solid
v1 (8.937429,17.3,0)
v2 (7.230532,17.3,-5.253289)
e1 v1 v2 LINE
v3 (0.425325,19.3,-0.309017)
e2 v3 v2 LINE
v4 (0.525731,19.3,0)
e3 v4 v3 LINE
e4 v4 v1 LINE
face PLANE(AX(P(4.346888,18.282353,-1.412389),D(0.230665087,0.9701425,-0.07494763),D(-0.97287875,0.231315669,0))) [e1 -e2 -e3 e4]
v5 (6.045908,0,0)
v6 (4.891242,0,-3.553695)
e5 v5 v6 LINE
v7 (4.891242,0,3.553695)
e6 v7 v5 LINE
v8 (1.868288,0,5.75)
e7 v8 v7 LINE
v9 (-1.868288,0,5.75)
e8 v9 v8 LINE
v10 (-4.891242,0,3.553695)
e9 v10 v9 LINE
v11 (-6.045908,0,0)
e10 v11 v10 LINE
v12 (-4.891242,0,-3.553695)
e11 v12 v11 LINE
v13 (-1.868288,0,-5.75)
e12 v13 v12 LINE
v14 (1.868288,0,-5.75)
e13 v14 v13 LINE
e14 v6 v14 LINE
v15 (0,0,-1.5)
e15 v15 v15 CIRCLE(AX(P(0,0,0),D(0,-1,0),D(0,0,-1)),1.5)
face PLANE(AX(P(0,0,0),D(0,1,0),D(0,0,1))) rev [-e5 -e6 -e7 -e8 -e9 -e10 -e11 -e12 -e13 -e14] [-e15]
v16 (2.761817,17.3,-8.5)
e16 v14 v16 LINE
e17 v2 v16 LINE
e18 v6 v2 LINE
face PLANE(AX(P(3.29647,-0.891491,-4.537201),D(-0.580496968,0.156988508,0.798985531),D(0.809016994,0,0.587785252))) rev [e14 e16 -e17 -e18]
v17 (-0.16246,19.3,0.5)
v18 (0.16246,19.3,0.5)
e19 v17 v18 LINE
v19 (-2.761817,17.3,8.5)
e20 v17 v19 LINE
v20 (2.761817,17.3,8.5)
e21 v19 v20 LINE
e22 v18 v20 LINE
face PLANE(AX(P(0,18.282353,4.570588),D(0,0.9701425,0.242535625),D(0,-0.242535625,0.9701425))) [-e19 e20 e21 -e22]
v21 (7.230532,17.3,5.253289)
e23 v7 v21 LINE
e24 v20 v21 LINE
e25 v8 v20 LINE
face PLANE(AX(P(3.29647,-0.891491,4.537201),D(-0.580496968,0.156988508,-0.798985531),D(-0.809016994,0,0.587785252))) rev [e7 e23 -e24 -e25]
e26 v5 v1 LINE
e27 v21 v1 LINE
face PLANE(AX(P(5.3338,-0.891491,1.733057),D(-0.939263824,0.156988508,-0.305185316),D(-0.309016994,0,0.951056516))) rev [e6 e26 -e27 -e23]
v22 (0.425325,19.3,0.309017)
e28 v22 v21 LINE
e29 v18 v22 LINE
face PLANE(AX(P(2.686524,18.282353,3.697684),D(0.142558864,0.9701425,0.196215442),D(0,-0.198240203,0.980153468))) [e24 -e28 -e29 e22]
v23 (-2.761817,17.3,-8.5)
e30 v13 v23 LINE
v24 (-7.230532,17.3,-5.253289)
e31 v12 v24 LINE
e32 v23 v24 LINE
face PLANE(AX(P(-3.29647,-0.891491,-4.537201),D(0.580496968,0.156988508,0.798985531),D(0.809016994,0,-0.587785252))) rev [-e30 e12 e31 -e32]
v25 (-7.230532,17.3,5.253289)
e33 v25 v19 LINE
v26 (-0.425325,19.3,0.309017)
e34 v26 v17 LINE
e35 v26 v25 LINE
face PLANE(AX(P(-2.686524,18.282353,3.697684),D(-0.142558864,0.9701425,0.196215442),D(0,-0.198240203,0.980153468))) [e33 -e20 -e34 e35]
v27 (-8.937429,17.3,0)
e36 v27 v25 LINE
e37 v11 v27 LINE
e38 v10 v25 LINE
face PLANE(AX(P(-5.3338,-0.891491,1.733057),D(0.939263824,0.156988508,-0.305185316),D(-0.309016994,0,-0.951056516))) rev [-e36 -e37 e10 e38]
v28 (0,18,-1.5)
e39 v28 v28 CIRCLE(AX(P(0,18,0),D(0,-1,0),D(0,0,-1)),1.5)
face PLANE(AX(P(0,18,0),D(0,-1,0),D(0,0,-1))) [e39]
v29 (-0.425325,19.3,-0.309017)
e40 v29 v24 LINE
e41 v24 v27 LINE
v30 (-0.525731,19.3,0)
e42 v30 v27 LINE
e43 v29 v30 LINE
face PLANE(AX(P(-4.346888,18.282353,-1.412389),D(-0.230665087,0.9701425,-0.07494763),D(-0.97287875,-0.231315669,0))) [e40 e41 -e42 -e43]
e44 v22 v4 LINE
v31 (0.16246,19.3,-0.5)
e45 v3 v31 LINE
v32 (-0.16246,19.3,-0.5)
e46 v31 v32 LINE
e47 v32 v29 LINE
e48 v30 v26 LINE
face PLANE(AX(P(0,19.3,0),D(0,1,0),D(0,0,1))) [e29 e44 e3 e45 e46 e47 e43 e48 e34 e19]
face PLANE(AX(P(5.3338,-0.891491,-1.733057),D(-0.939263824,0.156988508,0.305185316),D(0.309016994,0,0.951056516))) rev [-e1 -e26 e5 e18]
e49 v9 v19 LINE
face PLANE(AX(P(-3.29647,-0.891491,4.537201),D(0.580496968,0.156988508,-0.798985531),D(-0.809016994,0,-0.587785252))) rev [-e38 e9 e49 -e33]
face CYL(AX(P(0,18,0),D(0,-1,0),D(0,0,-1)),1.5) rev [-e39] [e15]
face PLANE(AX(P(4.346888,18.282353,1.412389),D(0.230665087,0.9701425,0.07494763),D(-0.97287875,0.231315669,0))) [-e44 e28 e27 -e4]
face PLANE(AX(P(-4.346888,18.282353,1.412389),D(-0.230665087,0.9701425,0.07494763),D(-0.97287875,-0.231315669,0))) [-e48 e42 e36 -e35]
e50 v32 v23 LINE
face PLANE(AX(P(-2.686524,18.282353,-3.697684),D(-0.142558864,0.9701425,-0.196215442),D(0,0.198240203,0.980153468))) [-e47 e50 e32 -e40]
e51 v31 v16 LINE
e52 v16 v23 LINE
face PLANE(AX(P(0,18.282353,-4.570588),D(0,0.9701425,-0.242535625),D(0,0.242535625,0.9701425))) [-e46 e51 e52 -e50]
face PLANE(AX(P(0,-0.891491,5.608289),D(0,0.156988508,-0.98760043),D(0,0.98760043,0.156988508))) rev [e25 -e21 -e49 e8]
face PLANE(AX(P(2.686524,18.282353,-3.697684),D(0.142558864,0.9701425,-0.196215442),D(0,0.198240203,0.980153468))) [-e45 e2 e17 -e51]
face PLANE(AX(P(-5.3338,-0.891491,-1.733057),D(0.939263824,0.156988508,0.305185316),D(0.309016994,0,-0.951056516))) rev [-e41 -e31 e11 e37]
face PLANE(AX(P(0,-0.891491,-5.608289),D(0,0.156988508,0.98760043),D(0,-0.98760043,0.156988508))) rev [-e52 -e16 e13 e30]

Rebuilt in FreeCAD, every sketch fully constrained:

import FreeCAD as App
import Part
import Sketcher
Q = App.Units.Quantity

doc = App.newDocument("Part")
params = doc.addObject("Spreadsheet::Sheet", "Params")
for row, (alias, value) in enumerate([
    ("sketch5_diameter", "3 mm"),
    ("pocket1_length", "18 mm"),
], start=1):
    params.set(f"A{row}", alias)
    params.set(f"B{row}", "=" + value)
    params.setAlias(f"B{row}", alias)

body = doc.addObject("PartDesign::Body", "Body")

sketch1 = body.newObject("Sketcher::SketchObject", "Sketch")
sketch1.AttachmentSupport = (doc.getObject("XZ_Plane"), [""])
sketch1.MapMode = "FlatFace"
sketch1.addGeometry(Part.LineSegment(App.Vector(4.891242, -3.553695, 0), App.Vector(1.868288, -5.75, 0)), False)
sketch1.addGeometry(Part.LineSegment(App.Vector(1.868288, -5.75, 0), App.Vector(-1.868288, -5.75, 0)), False)
sketch1.addGeometry(Part.LineSegment(App.Vector(-1.868288, -5.75, 0), App.Vector(-4.891242, -3.553695, 0)), False)
sketch1.addGeometry(Part.LineSegment(App.Vector(-4.891242, -3.553695, 0), App.Vector(-6.045908, 0, 0)), False)
sketch1.addGeometry(Part.LineSegment(App.Vector(-6.045908, 0, 0), App.Vector(-4.891242, 3.553695, 0)), False)
sketch1.addGeometry(Part.LineSegment(App.Vector(-4.891242, 3.553695, 0), App.Vector(-1.868288, 5.75, 0)), False)
sketch1.addGeometry(Part.LineSegment(App.Vector(-1.868288, 5.75, 0), App.Vector(1.868288, 5.75, 0)), False)
sketch1.addGeometry(Part.LineSegment(App.Vector(1.868288, 5.75, 0), App.Vector(4.891242, 3.553695, 0)), False)
sketch1.addGeometry(Part.LineSegment(App.Vector(4.891242, 3.553695, 0), App.Vector(6.045908, 0, 0)), False)
sketch1.addGeometry(Part.LineSegment(App.Vector(6.045908, 0, 0), App.Vector(4.891242, -3.553695, 0)), False)
sketch1.addConstraint(Sketcher.Constraint("Coincident", 0, 2, 1, 1))
sketch1.addConstraint(Sketcher.Constraint("Coincident", 1, 2, 2, 1))
sketch1.addConstraint(Sketcher.Constraint("Coincident", 2, 2, 3, 1))
sketch1.addConstraint(Sketcher.Constraint("Coincident", 3, 2, 4, 1))
sketch1.addConstraint(Sketcher.Constraint("Coincident", 4, 2, 5, 1))
sketch1.addConstraint(Sketcher.Constraint("Coincident", 5, 2, 6, 1))
sketch1.addConstraint(Sketcher.Constraint("Coincident", 6, 2, 7, 1))
sketch1.addConstraint(Sketcher.Constraint("Coincident", 7, 2, 8, 1))
sketch1.addConstraint(Sketcher.Constraint("Coincident", 8, 2, 9, 1))
sketch1.addConstraint(Sketcher.Constraint("Coincident", 9, 2, 0, 1))
sketch1.addConstraint(Sketcher.Constraint("Horizontal", 1))
sketch1.addConstraint(Sketcher.Constraint("Horizontal", 6))
sketch1.addConstraint(Sketcher.Constraint("Symmetric", 0, 2, 5, 2, -1, 1))
sketch1.addConstraint(Sketcher.Constraint("Symmetric", 2, 2, 7, 2, -1, 1))
sketch1.addConstraint(Sketcher.Constraint("Symmetric", 3, 2, 8, 2, -1, 1))
sketch1.addConstraint(Sketcher.Constraint("Symmetric", 4, 2, 9, 2, -1, 1))
sketch1.addConstraint(Sketcher.Constraint("Symmetric", 4, 2, 7, 2, -2))
sketch1.addConstraint(Sketcher.Constraint("PointOnObject", 3, 2, -1))
sketch1.addConstraint(Sketcher.Constraint("Parallel", 2, 7))
sketch1.addConstraint(Sketcher.Constraint("Vertical", 1, 2, 5, 2))
sketch1.addConstraint(Sketcher.Constraint("Equal", 2, 3))
sketch1.addConstraint(Sketcher.Constraint("Angle", 0, Q("-144 deg")))
sketch1.addConstraint(Sketcher.Constraint("Angle", 3, Q("108 deg")))
sketch1.addConstraint(Sketcher.Constraint("DistanceY", 1, 2, 5, 2, 11.5))
sketch1.addConstraint(Sketcher.Constraint("DistanceX", 1, 2, 1, 1, 3.736577))

sketch2 = body.newObject("Sketcher::SketchObject", "Sketch001")
sketch2.AttachmentSupport = (doc.getObject("XZ_Plane"), [""])
sketch2.MapMode = "FlatFace"
sketch2.AttachmentOffset = App.Placement(App.Vector(0, 0, -17.3), App.Rotation())
sketch2.addGeometry(Part.LineSegment(App.Vector(-8.937429, 0, 0), App.Vector(-7.230532, 5.253289, 0)), False)
sketch2.addGeometry(Part.LineSegment(App.Vector(-7.230532, 5.253289, 0), App.Vector(-2.761817, 8.5, 0)), False)
sketch2.addGeometry(Part.LineSegment(App.Vector(-2.761817, 8.5, 0), App.Vector(2.761817, 8.5, 0)), False)
sketch2.addGeometry(Part.LineSegment(App.Vector(2.761817, 8.5, 0), App.Vector(7.230532, 5.253289, 0)), False)
sketch2.addGeometry(Part.LineSegment(App.Vector(7.230532, 5.253289, 0), App.Vector(8.937429, 0, 0)), False)
sketch2.addGeometry(Part.LineSegment(App.Vector(8.937429, 0, 0), App.Vector(7.230532, -5.253289, 0)), False)
sketch2.addGeometry(Part.LineSegment(App.Vector(7.230532, -5.253289, 0), App.Vector(2.761817, -8.5, 0)), False)
sketch2.addGeometry(Part.LineSegment(App.Vector(2.761817, -8.5, 0), App.Vector(-2.761817, -8.5, 0)), False)
sketch2.addGeometry(Part.LineSegment(App.Vector(-2.761817, -8.5, 0), App.Vector(-7.230532, -5.253289, 0)), False)
sketch2.addGeometry(Part.LineSegment(App.Vector(-7.230532, -5.253289, 0), App.Vector(-8.937429, 0, 0)), False)
sketch2.addConstraint(Sketcher.Constraint("Coincident", 0, 2, 1, 1))
sketch2.addConstraint(Sketcher.Constraint("Coincident", 1, 2, 2, 1))
sketch2.addConstraint(Sketcher.Constraint("Coincident", 2, 2, 3, 1))
sketch2.addConstraint(Sketcher.Constraint("Coincident", 3, 2, 4, 1))
sketch2.addConstraint(Sketcher.Constraint("Coincident", 4, 2, 5, 1))
sketch2.addConstraint(Sketcher.Constraint("Coincident", 5, 2, 6, 1))
sketch2.addConstraint(Sketcher.Constraint("Coincident", 6, 2, 7, 1))
sketch2.addConstraint(Sketcher.Constraint("Coincident", 7, 2, 8, 1))
sketch2.addConstraint(Sketcher.Constraint("Coincident", 8, 2, 9, 1))
sketch2.addConstraint(Sketcher.Constraint("Coincident", 9, 2, 0, 1))
sketch2.addConstraint(Sketcher.Constraint("Horizontal", 2))
sketch2.addConstraint(Sketcher.Constraint("Horizontal", 7))
sketch2.addConstraint(Sketcher.Constraint("Symmetric", 0, 2, 5, 2, -1, 1))
sketch2.addConstraint(Sketcher.Constraint("Symmetric", 1, 2, 6, 2, -1, 1))
sketch2.addConstraint(Sketcher.Constraint("Symmetric", 3, 2, 8, 2, -1, 1))
sketch2.addConstraint(Sketcher.Constraint("Symmetric", 4, 2, 9, 2, -1, 1))
sketch2.addConstraint(Sketcher.Constraint("Symmetric", 0, 2, 3, 2, -2))
sketch2.addConstraint(Sketcher.Constraint("PointOnObject", 4, 2, -1))
sketch2.addConstraint(Sketcher.Constraint("Parallel", 3, 8))
sketch2.addConstraint(Sketcher.Constraint("Vertical", 2, 2, 6, 2))
sketch2.addConstraint(Sketcher.Constraint("Equal", 0, 1))
sketch2.addConstraint(Sketcher.Constraint("Angle", 0, Q("72 deg")))
sketch2.addConstraint(Sketcher.Constraint("Angle", 1, Q("36 deg")))
sketch2.addConstraint(Sketcher.Constraint("DistanceY", 6, 2, 2, 2, 17.0))
sketch2.addConstraint(Sketcher.Constraint("DistanceX", 2, 1, 2, 2, 5.523635))

additiveloft = body.newObject("PartDesign::AdditiveLoft", "AdditiveLoft")
additiveloft.Profile = sketch1
additiveloft.Sections = [sketch2]

sketch3 = body.newObject("Sketcher::SketchObject", "Sketch002")
sketch3.AttachmentSupport = (doc.getObject("XZ_Plane"), [""])
sketch3.MapMode = "FlatFace"
sketch3.AttachmentOffset = App.Placement(App.Vector(0, 0, -19.3), App.Rotation())
sketch3.addGeometry(Part.LineSegment(App.Vector(-0.525731, 0, 0), App.Vector(-0.425325, 0.309017, 0)), False)
sketch3.addGeometry(Part.LineSegment(App.Vector(-0.425325, 0.309017, 0), App.Vector(-0.16246, 0.5, 0)), False)
sketch3.addGeometry(Part.LineSegment(App.Vector(-0.16246, 0.5, 0), App.Vector(0.16246, 0.5, 0)), False)
sketch3.addGeometry(Part.LineSegment(App.Vector(0.16246, 0.5, 0), App.Vector(0.425325, 0.309017, 0)), False)
sketch3.addGeometry(Part.LineSegment(App.Vector(0.425325, 0.309017, 0), App.Vector(0.525731, 0, 0)), False)
sketch3.addGeometry(Part.LineSegment(App.Vector(0.525731, 0, 0), App.Vector(0.425325, -0.309017, 0)), False)
sketch3.addGeometry(Part.LineSegment(App.Vector(0.425325, -0.309017, 0), App.Vector(0.16246, -0.5, 0)), False)
sketch3.addGeometry(Part.LineSegment(App.Vector(0.16246, -0.5, 0), App.Vector(-0.16246, -0.5, 0)), False)
sketch3.addGeometry(Part.LineSegment(App.Vector(-0.16246, -0.5, 0), App.Vector(-0.425325, -0.309017, 0)), False)
sketch3.addGeometry(Part.LineSegment(App.Vector(-0.425325, -0.309017, 0), App.Vector(-0.525731, 0, 0)), False)
sketch3.addConstraint(Sketcher.Constraint("Coincident", 0, 2, 1, 1))
sketch3.addConstraint(Sketcher.Constraint("Coincident", 1, 2, 2, 1))
sketch3.addConstraint(Sketcher.Constraint("Coincident", 2, 2, 3, 1))
sketch3.addConstraint(Sketcher.Constraint("Coincident", 3, 2, 4, 1))
sketch3.addConstraint(Sketcher.Constraint("Coincident", 4, 2, 5, 1))
sketch3.addConstraint(Sketcher.Constraint("Coincident", 5, 2, 6, 1))
sketch3.addConstraint(Sketcher.Constraint("Coincident", 6, 2, 7, 1))
sketch3.addConstraint(Sketcher.Constraint("Coincident", 7, 2, 8, 1))
sketch3.addConstraint(Sketcher.Constraint("Coincident", 8, 2, 9, 1))
sketch3.addConstraint(Sketcher.Constraint("Coincident", 9, 2, 0, 1))
sketch3.addConstraint(Sketcher.Constraint("Horizontal", 2))
sketch3.addConstraint(Sketcher.Constraint("Horizontal", 7))
sketch3.addConstraint(Sketcher.Constraint("Symmetric", 0, 2, 5, 2, -1, 1))
sketch3.addConstraint(Sketcher.Constraint("Symmetric", 1, 2, 6, 2, -1, 1))
sketch3.addConstraint(Sketcher.Constraint("Symmetric", 3, 2, 8, 2, -1, 1))
sketch3.addConstraint(Sketcher.Constraint("Symmetric", 4, 2, 9, 2, -1, 1))
sketch3.addConstraint(Sketcher.Constraint("Symmetric", 0, 2, 3, 2, -2))
sketch3.addConstraint(Sketcher.Constraint("PointOnObject", 4, 2, -1))
sketch3.addConstraint(Sketcher.Constraint("Parallel", 3, 8))
sketch3.addConstraint(Sketcher.Constraint("Vertical", 2, 2, 6, 2))
sketch3.addConstraint(Sketcher.Constraint("Equal", 0, 1))
sketch3.addConstraint(Sketcher.Constraint("Angle", 0, Q("72 deg")))
sketch3.addConstraint(Sketcher.Constraint("Angle", 1, Q("36 deg")))
sketch3.addConstraint(Sketcher.Constraint("DistanceY", 6, 2, 2, 2, 1.0))
sketch3.addConstraint(Sketcher.Constraint("DistanceX", 2, 1, 2, 2, 0.32492))

sketch4 = body.newObject("Sketcher::SketchObject", "Sketch003")
sketch4.AttachmentSupport = (doc.getObject("XZ_Plane"), [""])
sketch4.MapMode = "FlatFace"
sketch4.AttachmentOffset = App.Placement(App.Vector(0, 0, -17.3), App.Rotation())
sketch4.addGeometry(Part.LineSegment(App.Vector(-8.937429, 0, 0), App.Vector(-7.230532, 5.253289, 0)), False)
sketch4.addGeometry(Part.LineSegment(App.Vector(-7.230532, 5.253289, 0), App.Vector(-2.761817, 8.5, 0)), False)
sketch4.addGeometry(Part.LineSegment(App.Vector(-2.761817, 8.5, 0), App.Vector(2.761817, 8.5, 0)), False)
sketch4.addGeometry(Part.LineSegment(App.Vector(2.761817, 8.5, 0), App.Vector(7.230532, 5.253289, 0)), False)
sketch4.addGeometry(Part.LineSegment(App.Vector(7.230532, 5.253289, 0), App.Vector(8.937429, 0, 0)), False)
sketch4.addGeometry(Part.LineSegment(App.Vector(8.937429, 0, 0), App.Vector(7.230532, -5.253289, 0)), False)
sketch4.addGeometry(Part.LineSegment(App.Vector(7.230532, -5.253289, 0), App.Vector(2.761817, -8.5, 0)), False)
sketch4.addGeometry(Part.LineSegment(App.Vector(2.761817, -8.5, 0), App.Vector(-2.761817, -8.5, 0)), False)
sketch4.addGeometry(Part.LineSegment(App.Vector(-2.761817, -8.5, 0), App.Vector(-7.230532, -5.253289, 0)), False)
sketch4.addGeometry(Part.LineSegment(App.Vector(-7.230532, -5.253289, 0), App.Vector(-8.937429, 0, 0)), False)
sketch4.addConstraint(Sketcher.Constraint("Coincident", 0, 2, 1, 1))
sketch4.addConstraint(Sketcher.Constraint("Coincident", 1, 2, 2, 1))
sketch4.addConstraint(Sketcher.Constraint("Coincident", 2, 2, 3, 1))
sketch4.addConstraint(Sketcher.Constraint("Coincident", 3, 2, 4, 1))
sketch4.addConstraint(Sketcher.Constraint("Coincident", 4, 2, 5, 1))
sketch4.addConstraint(Sketcher.Constraint("Coincident", 5, 2, 6, 1))
sketch4.addConstraint(Sketcher.Constraint("Coincident", 6, 2, 7, 1))
sketch4.addConstraint(Sketcher.Constraint("Coincident", 7, 2, 8, 1))
sketch4.addConstraint(Sketcher.Constraint("Coincident", 8, 2, 9, 1))
sketch4.addConstraint(Sketcher.Constraint("Coincident", 9, 2, 0, 1))
sketch4.addConstraint(Sketcher.Constraint("Horizontal", 2))
sketch4.addConstraint(Sketcher.Constraint("Horizontal", 7))
sketch4.addConstraint(Sketcher.Constraint("Symmetric", 0, 2, 5, 2, -1, 1))
sketch4.addConstraint(Sketcher.Constraint("Symmetric", 1, 2, 6, 2, -1, 1))
sketch4.addConstraint(Sketcher.Constraint("Symmetric", 3, 2, 8, 2, -1, 1))
sketch4.addConstraint(Sketcher.Constraint("Symmetric", 4, 2, 9, 2, -1, 1))
sketch4.addConstraint(Sketcher.Constraint("Symmetric", 0, 2, 3, 2, -2))
sketch4.addConstraint(Sketcher.Constraint("PointOnObject", 4, 2, -1))
sketch4.addConstraint(Sketcher.Constraint("Parallel", 3, 8))
sketch4.addConstraint(Sketcher.Constraint("Vertical", 2, 2, 6, 2))
sketch4.addConstraint(Sketcher.Constraint("Equal", 0, 1))
sketch4.addConstraint(Sketcher.Constraint("Angle", 0, Q("72 deg")))
sketch4.addConstraint(Sketcher.Constraint("Angle", 1, Q("36 deg")))
sketch4.addConstraint(Sketcher.Constraint("DistanceY", 6, 2, 2, 2, 17.0))
sketch4.addConstraint(Sketcher.Constraint("DistanceX", 2, 1, 2, 2, 5.523635))

additiveloft2 = body.newObject("PartDesign::AdditiveLoft", "AdditiveLoft001")
additiveloft2.Profile = sketch3
additiveloft2.Sections = [sketch4]

sketch5 = body.newObject("Sketcher::SketchObject", "Sketch004")
sketch5.AttachmentSupport = (doc.getObject("XZ_Plane"), [""])
sketch5.MapMode = "FlatFace"
sketch5.addGeometry(Part.Circle(App.Vector(0, 0, 0), App.Vector(0, 0, 1), 1.5), False)
sketch5.addConstraint(Sketcher.Constraint("Coincident", 0, 3, -1, 1))
sketch5.addConstraint(Sketcher.Constraint("Diameter", 0, 3.0))
sketch5.setExpression("Constraints[1]", "Params.sketch5_diameter")
pocket1 = body.newObject("PartDesign::Pocket", "Pocket")
pocket1.Profile = sketch5
pocket1.setExpression("Length", "Params.pocket1_length")

doc.recompute()
